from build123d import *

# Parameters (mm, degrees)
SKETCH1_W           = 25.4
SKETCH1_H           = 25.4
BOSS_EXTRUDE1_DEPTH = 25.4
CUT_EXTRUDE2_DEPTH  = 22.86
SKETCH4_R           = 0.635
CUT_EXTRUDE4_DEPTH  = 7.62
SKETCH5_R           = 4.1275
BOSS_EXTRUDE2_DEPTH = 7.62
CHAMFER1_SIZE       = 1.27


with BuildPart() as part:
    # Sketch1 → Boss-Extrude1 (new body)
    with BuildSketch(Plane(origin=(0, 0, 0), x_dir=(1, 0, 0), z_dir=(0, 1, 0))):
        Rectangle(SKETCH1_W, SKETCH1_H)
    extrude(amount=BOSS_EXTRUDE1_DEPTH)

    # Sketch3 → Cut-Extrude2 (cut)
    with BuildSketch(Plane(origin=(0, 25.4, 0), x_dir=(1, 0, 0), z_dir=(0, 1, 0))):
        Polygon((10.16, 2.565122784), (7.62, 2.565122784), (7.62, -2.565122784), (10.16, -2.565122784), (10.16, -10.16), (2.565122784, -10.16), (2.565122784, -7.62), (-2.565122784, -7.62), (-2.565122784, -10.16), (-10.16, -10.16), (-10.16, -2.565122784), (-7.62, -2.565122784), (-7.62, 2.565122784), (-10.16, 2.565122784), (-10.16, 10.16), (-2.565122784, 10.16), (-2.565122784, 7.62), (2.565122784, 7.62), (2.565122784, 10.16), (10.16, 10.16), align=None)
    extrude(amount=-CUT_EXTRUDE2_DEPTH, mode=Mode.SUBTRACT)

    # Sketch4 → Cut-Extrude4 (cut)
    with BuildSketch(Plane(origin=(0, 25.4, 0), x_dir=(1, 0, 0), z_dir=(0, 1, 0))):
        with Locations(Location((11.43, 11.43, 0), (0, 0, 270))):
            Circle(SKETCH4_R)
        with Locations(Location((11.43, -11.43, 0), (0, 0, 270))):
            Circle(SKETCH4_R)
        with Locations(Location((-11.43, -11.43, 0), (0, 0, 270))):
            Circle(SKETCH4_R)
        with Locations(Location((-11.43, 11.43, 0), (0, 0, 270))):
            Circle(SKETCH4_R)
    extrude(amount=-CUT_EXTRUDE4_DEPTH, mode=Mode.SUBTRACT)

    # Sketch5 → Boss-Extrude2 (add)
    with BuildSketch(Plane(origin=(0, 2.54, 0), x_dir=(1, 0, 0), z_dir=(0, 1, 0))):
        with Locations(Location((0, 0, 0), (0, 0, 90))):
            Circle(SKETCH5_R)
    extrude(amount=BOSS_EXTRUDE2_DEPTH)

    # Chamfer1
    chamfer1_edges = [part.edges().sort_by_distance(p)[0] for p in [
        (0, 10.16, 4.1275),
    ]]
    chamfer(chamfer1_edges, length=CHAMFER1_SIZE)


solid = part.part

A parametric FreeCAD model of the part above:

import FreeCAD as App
import Part
import Sketcher

V = App.Vector
Q = App.Units.Quantity


def edges_at(feature, points):
    """Names of the edges that pass closest to the given points."""
    edges = feature.Shape.Edges
    near = lambda p: min(range(len(edges)), key=lambda i: edges[i].distToShape(Part.Vertex(*p))[0])
    return sorted({f"Edge{near(p) + 1}" for p in points})


def add_polygon(sketch, points):
    """Adds a closed chain of lines whose ends are joined by coincident constraints."""
    first, n = sketch.GeometryCount, len(points)
    for a, b in zip(points, points[1:] + points[:1]):
        sketch.addGeometry(Part.LineSegment(App.Vector(*a, 0), App.Vector(*b, 0)), False)
    for i in range(n):
        sketch.addConstraint(Sketcher.Constraint("Coincident", first + i, 2, first + (i + 1) % n, 1))

doc = App.newDocument("Part")
body = doc.addObject("PartDesign::Body", "Body")

# Sketch on XZ plane
sketch1 = body.newObject("Sketcher::SketchObject", "Sketch")
sketch1.AttachmentSupport = (doc.getObject("XZ_Plane"), [""])
sketch1.MapMode = "FlatFace"
add_polygon(sketch1, [(-12.7, -12.7), (-12.7, 12.7), (12.7, 12.7), (12.7, -12.7)])  # lines 0-3
sketch1.addConstraint([
    Sketcher.Constraint("Vertical", 0),
    Sketcher.Constraint("Horizontal", 1),
    Sketcher.Constraint("Vertical", 2),
    Sketcher.Constraint("Horizontal", 3),
    Sketcher.Constraint("Symmetric", 0, 2, 2, 2, -1, 1),
    Sketcher.Constraint("Equal", 3, 0),
    Sketcher.Constraint("DistanceX", 1, 1, 1, 2, Q("1 in")),
])
pad1 = body.newObject("PartDesign::Pad", "Pad")
pad1.Profile = sketch1
pad1.Length = Q("1 in")
pad1.Reversed = True

# Sketch on XZ plane
sketch2 = body.newObject("Sketcher::SketchObject", "Sketch001")
sketch2.AttachmentSupport = (doc.getObject("XZ_Plane"), [""])
sketch2.MapMode = "FlatFace"
sketch2.AttachmentOffset = App.Placement(V(0, 0, -1 * 25.4), App.Rotation())
add_polygon(sketch2, [(7.62, -2.565123), (10.16, -2.565123), (10.16, -10.16), (2.565123, -10.16), (2.565123, -7.62), (-2.565123, -7.62), (-2.565123, -10.16), (-10.16, -10.16), (-10.16, -2.565123), (-7.62, -2.565123), (-7.62, 2.565123), (-10.16, 2.565123), (-10.16, 10.16), (-2.565123, 10.16), (-2.565123, 7.62), (2.565123, 7.62), (2.565123, 10.16), (10.16, 10.16), (10.16, 2.565123), (7.62, 2.565123)])  # lines 0-19
sketch2.addConstraint([
    Sketcher.Constraint("Horizontal", 0),
    Sketcher.Constraint("Vertical", 1),
    Sketcher.Constraint("Horizontal", 2),
    Sketcher.Constraint("Vertical", 3),
    Sketcher.Constraint("Horizontal", 4),
    Sketcher.Constraint("Vertical", 5),
    Sketcher.Constraint("Horizontal", 6),
    Sketcher.Constraint("Vertical", 7),
    Sketcher.Constraint("Horizontal", 8),
    Sketcher.Constraint("Vertical", 9),
    Sketcher.Constraint("Horizontal", 10),
    Sketcher.Constraint("Vertical", 11),
    Sketcher.Constraint("Horizontal", 12),
    Sketcher.Constraint("Vertical", 13),
    Sketcher.Constraint("Horizontal", 14),
    Sketcher.Constraint("Vertical", 15),
    Sketcher.Constraint("Horizontal", 16),
    Sketcher.Constraint("Vertical", 17),
    Sketcher.Constraint("Horizontal", 18),
    Sketcher.Constraint("Vertical", 19),
    Sketcher.Constraint("Symmetric", 0, 2, 10, 2, -1, 1),
    Sketcher.Constraint("Symmetric", 2, 2, 12, 2, -1, 1),
    Sketcher.Constraint("Symmetric", 4, 2, 14, 2, -1, 1),
    Sketcher.Constraint("Symmetric", 6, 2, 16, 2, -1, 1),
    Sketcher.Constraint("Symmetric", 8, 2, 18, 2, -1, 1),
    Sketcher.Constraint("Symmetric", 2, 2, 5, 2, -2),
    Sketcher.Constraint("Symmetric", 0, 2, 7, 2, -2),
    Sketcher.Constraint("Equal", 16, 1),
    Sketcher.Constraint("Equal", 18, 3),
    Sketcher.Constraint("Equal", 14, 9),
    Sketcher.Constraint("DistanceX", 0, 1, 0, 2, Q("0.1 in")),
    Sketcher.Constraint("DistanceX", -1, 1, 0, 2, Q("0.4 in")),
    Sketcher.Constraint("DistanceX", 2, 2, 2, 1, Q("7.594877 mm")),
])
pocket1 = body.newObject("PartDesign::Pocket", "Pocket")
pocket1.Profile = sketch2
pocket1.Length = Q("0.9 in")
pocket1.Reversed = True

# Sketch on XZ plane
sketch3 = body.newObject("Sketcher::SketchObject", "Sketch002")
sketch3.AttachmentSupport = (doc.getObject("XZ_Plane"), [""])
sketch3.MapMode = "FlatFace"
sketch3.AttachmentOffset = App.Placement(V(0, 0, -1 * 25.4), App.Rotation())
sketch3.addGeometry([
    Part.Circle(V(11.43, -11.43, 0), V(0, 0, 1), 0.635),
    Part.Circle(V(11.43, 11.43, 0), V(0, 0, 1), 0.635),
    Part.Circle(V(-11.43, 11.43, 0), V(0, 0, 1), 0.635),
    Part.Circle(V(-11.43, -11.43, 0), V(0, 0, 1), 0.635),
], False)
sketch3.addConstraint([
    Sketcher.Constraint("Equal", 0, 1),
    Sketcher.Constraint("Equal", 1, 2),
    Sketcher.Constraint("Equal", 2, 3),
    Sketcher.Constraint("Symmetric", 0, 3, 2, 3, -1, 1),
    Sketcher.Constraint("Symmetric", 1, 3, 3, 3, -1, 1),
    Sketcher.Constraint("Symmetric", 1, 3, 2, 3, -2),
    Sketcher.Constraint("Diameter", 0, Q("0.05 in")),
    Sketcher.Constraint("DistanceY", 0, 3, 1, 3, Q("0.9 in")),
    Sketcher.Constraint("DistanceX", 2, 3, 1, 3, Q("0.9 in")),
])
pocket2 = body.newObject("PartDesign::Pocket", "Pocket001")
pocket2.Profile = sketch3
pocket2.Length = Q("0.3 in")
pocket2.Reversed = True

# Sketch on XZ plane
sketch4 = body.newObject("Sketcher::SketchObject", "Sketch003")
sketch4.AttachmentSupport = (doc.getObject("XZ_Plane"), [""])
sketch4.MapMode = "FlatFace"
sketch4.AttachmentOffset = App.Placement(V(0, 0, -0.1 * 25.4), App.Rotation())
sketch4.addGeometry(Part.Circle(V(0, 0, 0), V(0, 0, 1), 4.1275), False)
sketch4.addConstraint([
    Sketcher.Constraint("Coincident", 0, 3, -1, 1),
    Sketcher.Constraint("Diameter", 0, Q("0.325 in")),
])
pad2 = body.newObject("PartDesign::Pad", "Pad001")
pad2.Profile = sketch4
pad2.Length = Q("0.3 in")
pad2.Reversed = True
doc.recompute()

chamfer = body.newObject("PartDesign::Chamfer", "Chamfer")
chamfer.Base = (pad2, edges_at(pad2, [(0, 10.16, 4.128)]))
chamfer.Size = Q("0.05 in")

doc.recompute()
